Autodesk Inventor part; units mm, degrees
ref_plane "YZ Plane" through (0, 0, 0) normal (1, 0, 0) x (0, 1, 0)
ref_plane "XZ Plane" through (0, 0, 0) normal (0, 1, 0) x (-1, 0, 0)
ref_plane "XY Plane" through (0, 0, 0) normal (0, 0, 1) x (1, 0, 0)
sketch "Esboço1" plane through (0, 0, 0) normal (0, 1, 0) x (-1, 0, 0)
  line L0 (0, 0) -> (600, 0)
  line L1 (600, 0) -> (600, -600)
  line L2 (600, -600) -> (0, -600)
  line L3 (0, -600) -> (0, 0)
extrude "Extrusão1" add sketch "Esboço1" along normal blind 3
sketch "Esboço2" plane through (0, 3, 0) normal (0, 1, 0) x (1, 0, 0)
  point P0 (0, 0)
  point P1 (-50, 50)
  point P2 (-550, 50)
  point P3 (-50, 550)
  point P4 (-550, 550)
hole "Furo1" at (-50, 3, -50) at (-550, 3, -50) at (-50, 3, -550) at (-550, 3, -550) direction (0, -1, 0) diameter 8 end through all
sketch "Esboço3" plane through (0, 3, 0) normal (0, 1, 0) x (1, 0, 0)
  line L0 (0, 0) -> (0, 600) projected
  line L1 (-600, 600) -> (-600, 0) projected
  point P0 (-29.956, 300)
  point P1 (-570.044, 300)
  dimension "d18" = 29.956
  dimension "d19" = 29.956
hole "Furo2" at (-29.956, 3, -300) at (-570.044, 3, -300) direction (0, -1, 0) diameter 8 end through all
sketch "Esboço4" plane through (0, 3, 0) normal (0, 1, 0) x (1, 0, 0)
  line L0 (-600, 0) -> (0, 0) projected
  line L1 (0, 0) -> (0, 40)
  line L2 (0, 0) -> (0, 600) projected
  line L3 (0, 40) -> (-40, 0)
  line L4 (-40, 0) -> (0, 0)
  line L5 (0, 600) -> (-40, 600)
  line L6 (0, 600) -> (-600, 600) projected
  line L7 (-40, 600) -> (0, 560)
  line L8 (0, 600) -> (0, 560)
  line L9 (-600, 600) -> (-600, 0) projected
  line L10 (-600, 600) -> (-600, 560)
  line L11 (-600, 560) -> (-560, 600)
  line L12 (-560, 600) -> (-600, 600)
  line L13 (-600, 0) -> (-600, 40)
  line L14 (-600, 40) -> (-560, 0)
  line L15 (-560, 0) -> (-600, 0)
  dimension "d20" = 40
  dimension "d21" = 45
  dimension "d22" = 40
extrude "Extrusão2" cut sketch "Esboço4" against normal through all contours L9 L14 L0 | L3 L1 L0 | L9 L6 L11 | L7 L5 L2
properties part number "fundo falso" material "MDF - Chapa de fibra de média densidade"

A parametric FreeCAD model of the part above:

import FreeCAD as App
import Part
import Sketcher

doc = App.newDocument("Part")
body = doc.addObject("PartDesign::Body", "Body")

sketch1 = body.newObject("Sketcher::SketchObject", "Sketch")
sketch1.AttachmentSupport = (doc.getObject("XZ_Plane"), [""])
sketch1.MapMode = "FlatFace"
sketch1.addGeometry(Part.LineSegment(App.Vector(-600, 0, 0), App.Vector(0, 0, 0)), False)
sketch1.addGeometry(Part.LineSegment(App.Vector(0, 0, 0), App.Vector(0, -600, 0)), False)
sketch1.addGeometry(Part.LineSegment(App.Vector(0, -600, 0), App.Vector(-600, -600, 0)), False)
sketch1.addGeometry(Part.LineSegment(App.Vector(-600, -600, 0), App.Vector(-600, 0, 0)), False)
sketch1.addConstraint(Sketcher.Constraint("Coincident", 0, 2, 1, 1))
sketch1.addConstraint(Sketcher.Constraint("Coincident", 1, 2, 2, 1))
sketch1.addConstraint(Sketcher.Constraint("Coincident", 2, 2, 3, 1))
sketch1.addConstraint(Sketcher.Constraint("Coincident", 3, 2, 0, 1))
sketch1.addConstraint(Sketcher.Constraint("Horizontal", 0))
sketch1.addConstraint(Sketcher.Constraint("Vertical", 1))
sketch1.addConstraint(Sketcher.Constraint("Horizontal", 2))
sketch1.addConstraint(Sketcher.Constraint("Vertical", 3))
sketch1.addConstraint(Sketcher.Constraint("Coincident", 0, 2, -1, 1))
sketch1.addConstraint(Sketcher.Constraint("Equal", 2, 1))
sketch1.addConstraint(Sketcher.Constraint("DistanceX", 0, 1, 0, 2, 600.0))
pad1 = body.newObject("PartDesign::Pad", "Pad")
pad1.Profile = sketch1
pad1.Length = 3
pad1.Reversed = True

sketch2 = body.newObject("Sketcher::SketchObject", "Sketch001")
sketch2.AttachmentSupport = (doc.getObject("XZ_Plane"), [""])
sketch2.MapMode = "FlatFace"
sketch2.AttachmentOffset = App.Placement(App.Vector(0, 0, -3), App.Rotation())
sketch2.addGeometry(Part.Circle(App.Vector(-50, -50, 0), App.Vector(0, 0, 1), 4), False)
sketch2.addGeometry(Part.Circle(App.Vector(-550, -50, 0), App.Vector(0, 0, 1), 4), False)
sketch2.addGeometry(Part.Circle(App.Vector(-50, -550, 0), App.Vector(0, 0, 1), 4), False)
sketch2.addGeometry(Part.Circle(App.Vector(-550, -550, 0), App.Vector(0, 0, 1), 4), False)
sketch2.addConstraint(Sketcher.Constraint("Equal", 0, 1))
sketch2.addConstraint(Sketcher.Constraint("Equal", 1, 2))
sketch2.addConstraint(Sketcher.Constraint("Equal", 2, 3))
sketch2.addConstraint(Sketcher.Constraint("Horizontal", 0, 3, 1, 3))
sketch2.addConstraint(Sketcher.Constraint("Horizontal", 2, 3, 3, 3))
sketch2.addConstraint(Sketcher.Constraint("Vertical", 0, 3, 2, 3))
sketch2.addConstraint(Sketcher.Constraint("Vertical", 1, 3, 3, 3))
sketch2.addConstraint(Sketcher.Constraint("Diameter", 0, 8.0))
sketch2.addConstraint(Sketcher.Constraint("DistanceX", 0, 3, -1, 1, 50.0))
sketch2.addConstraint(Sketcher.Constraint("DistanceY", 0, 3, -1, 1, 50.0))
sketch2.addConstraint(Sketcher.Constraint("DistanceX", 1, 3, -1, 1, 550.0))
sketch2.addConstraint(Sketcher.Constraint("DistanceY", 2, 3, -1, 1, 550.0))
doc.recompute()
hole = body.newObject("PartDesign::Hole", "Hole")
hole.Profile = sketch2
hole.ThreadType = "None"
hole.Diameter = 8
hole.DepthType = "ThroughAll"
hole.Reversed = True

sketch3 = body.newObject("Sketcher::SketchObject", "Sketch002")
sketch3.AttachmentSupport = (doc.getObject("XZ_Plane"), [""])
sketch3.MapMode = "FlatFace"
sketch3.AttachmentOffset = App.Placement(App.Vector(0, 0, -3), App.Rotation())
sketch3.addGeometry(Part.Circle(App.Vector(-30, -300, 0), App.Vector(0, 0, 1), 4), False)
sketch3.addGeometry(Part.Circle(App.Vector(-570, -300, 0), App.Vector(0, 0, 1), 4), False)
sketch3.addConstraint(Sketcher.Constraint("Equal", 0, 1))
sketch3.addConstraint(Sketcher.Constraint("Horizontal", 0, 3, 1, 3))
sketch3.addConstraint(Sketcher.Constraint("Diameter", 0, 8.0))
sketch3.addConstraint(Sketcher.Constraint("DistanceY", 0, 3, -1, 1, 300.0))
sketch3.addConstraint(Sketcher.Constraint("DistanceX", 0, 3, -1, 1, 29.956))
sketch3.addConstraint(Sketcher.Constraint("DistanceX", 1, 3, -1, 1, 570.044))
doc.recompute()
hole2 = body.newObject("PartDesign::Hole", "Hole001")
hole2.Profile = sketch3
hole2.ThreadType = "None"
hole2.Diameter = 8
hole2.DepthType = "ThroughAll"
hole2.Reversed = True

sketch4 = body.newObject("Sketcher::SketchObject", "Sketch003")
sketch4.AttachmentSupport = (doc.getObject("XZ_Plane"), [""])
sketch4.MapMode = "FlatFace"
sketch4.AttachmentOffset = App.Placement(App.Vector(0, 0, -3), App.Rotation())
sketch4.addGeometry(Part.LineSegment(App.Vector(-600, -40, 0), App.Vector(-600, 0, 0)), False)
sketch4.addGeometry(Part.LineSegment(App.Vector(-600, 0, 0), App.Vector(-560, 0, 0)), False)
sketch4.addGeometry(Part.LineSegment(App.Vector(-560, 0, 0), App.Vector(-600, -40, 0)), False)
sketch4.addGeometry(Part.LineSegment(App.Vector(0, -40, 0), App.Vector(-40, 0, 0)), False)
sketch4.addGeometry(Part.LineSegment(App.Vector(-40, 0, 0), App.Vector(0, 0, 0)), False)
sketch4.addGeometry(Part.LineSegment(App.Vector(0, 0, 0), App.Vector(0, -40, 0)), False)
sketch4.addGeometry(Part.LineSegment(App.Vector(-600, -600, 0), App.Vector(-600, -560, 0)), False)
sketch4.addGeometry(Part.LineSegment(App.Vector(-600, -560, 0), App.Vector(-560, -600, 0)), False)
sketch4.addGeometry(Part.LineSegment(App.Vector(-560, -600, 0), App.Vector(-600, -600, 0)), False)
sketch4.addGeometry(Part.LineSegment(App.Vector(-40, -600, 0), App.Vector(0, -560, 0)), False)
sketch4.addGeometry(Part.LineSegment(App.Vector(0, -560, 0), App.Vector(0, -600, 0)), False)
sketch4.addGeometry(Part.LineSegment(App.Vector(0, -600, 0), App.Vector(-40, -600, 0)), False)
sketch4.addConstraint(Sketcher.Constraint("Coincident", 0, 2, 1, 1))
sketch4.addConstraint(Sketcher.Constraint("Coincident", 1, 2, 2, 1))
sketch4.addConstraint(Sketcher.Constraint("Coincident", 2, 2, 0, 1))
sketch4.addConstraint(Sketcher.Constraint("Coincident", 3, 2, 4, 1))
sketch4.addConstraint(Sketcher.Constraint("Coincident", 4, 2, 5, 1))
sketch4.addConstraint(Sketcher.Constraint("Coincident", 5, 2, 3, 1))
sketch4.addConstraint(Sketcher.Constraint("Coincident", 6, 2, 7, 1))
sketch4.addConstraint(Sketcher.Constraint("Coincident", 7, 2, 8, 1))
sketch4.addConstraint(Sketcher.Constraint("Coincident", 8, 2, 6, 1))
sketch4.addConstraint(Sketcher.Constraint("Coincident", 9, 2, 10, 1))
sketch4.addConstraint(Sketcher.Constraint("Coincident", 10, 2, 11, 1))
sketch4.addConstraint(Sketcher.Constraint("Coincident", 11, 2, 9, 1))
sketch4.addConstraint(Sketcher.Constraint("Vertical", 0))
sketch4.addConstraint(Sketcher.Constraint("Horizontal", 1))
sketch4.addConstraint(Sketcher.Constraint("Horizontal", 4))
sketch4.addConstraint(Sketcher.Constraint("Vertical", 5))
sketch4.addConstraint(Sketcher.Constraint("Vertical", 6))
sketch4.addConstraint(Sketcher.Constraint("Horizontal", 8))
sketch4.addConstraint(Sketcher.Constraint("Vertical", 10))
sketch4.addConstraint(Sketcher.Constraint("Horizontal", 11))
sketch4.addConstraint(Sketcher.Constraint("Coincident", 4, 2, -1, 1))
sketch4.addConstraint(Sketcher.Constraint("PointOnObject", 0, 2, -1))
sketch4.addConstraint(Sketcher.Constraint("PointOnObject", 9, 2, -2))
sketch4.addConstraint(Sketcher.Constraint("Perpendicular", 2, 3))
sketch4.addConstraint(Sketcher.Constraint("Parallel", 3, 7))
sketch4.addConstraint(Sketcher.Constraint("Perpendicular", 7, 9))
sketch4.addConstraint(Sketcher.Constraint("Horizontal", 2, 2, 5, 2))
sketch4.addConstraint(Sketcher.Constraint("Horizontal", 6, 2, 9, 2))
sketch4.addConstraint(Sketcher.Constraint("Horizontal", 8, 2, 10, 2))
sketch4.addConstraint(Sketcher.Constraint("Vertical", 2, 2, 6, 2))
sketch4.addConstraint(Sketcher.Constraint("Vertical", 1, 2, 7, 2))
sketch4.addConstraint(Sketcher.Constraint("Vertical", 3, 2, 11, 2))
sketch4.addConstraint(Sketcher.Constraint("DistanceX", 1, 1, 1, 2, 40.0))
sketch4.addConstraint(Sketcher.Constraint("DistanceX", 0, 2, -1, 1, 600.0))
sketch4.addConstraint(Sketcher.Constraint("DistanceY", 6, 2, -1, 1, 560.0))
pocket1 = body.newObject("PartDesign::Pocket", "Pocket")
pocket1.Profile = sketch4
pocket1.Type = "ThroughAll"
pocket1.Reversed = True

doc.recompute()
